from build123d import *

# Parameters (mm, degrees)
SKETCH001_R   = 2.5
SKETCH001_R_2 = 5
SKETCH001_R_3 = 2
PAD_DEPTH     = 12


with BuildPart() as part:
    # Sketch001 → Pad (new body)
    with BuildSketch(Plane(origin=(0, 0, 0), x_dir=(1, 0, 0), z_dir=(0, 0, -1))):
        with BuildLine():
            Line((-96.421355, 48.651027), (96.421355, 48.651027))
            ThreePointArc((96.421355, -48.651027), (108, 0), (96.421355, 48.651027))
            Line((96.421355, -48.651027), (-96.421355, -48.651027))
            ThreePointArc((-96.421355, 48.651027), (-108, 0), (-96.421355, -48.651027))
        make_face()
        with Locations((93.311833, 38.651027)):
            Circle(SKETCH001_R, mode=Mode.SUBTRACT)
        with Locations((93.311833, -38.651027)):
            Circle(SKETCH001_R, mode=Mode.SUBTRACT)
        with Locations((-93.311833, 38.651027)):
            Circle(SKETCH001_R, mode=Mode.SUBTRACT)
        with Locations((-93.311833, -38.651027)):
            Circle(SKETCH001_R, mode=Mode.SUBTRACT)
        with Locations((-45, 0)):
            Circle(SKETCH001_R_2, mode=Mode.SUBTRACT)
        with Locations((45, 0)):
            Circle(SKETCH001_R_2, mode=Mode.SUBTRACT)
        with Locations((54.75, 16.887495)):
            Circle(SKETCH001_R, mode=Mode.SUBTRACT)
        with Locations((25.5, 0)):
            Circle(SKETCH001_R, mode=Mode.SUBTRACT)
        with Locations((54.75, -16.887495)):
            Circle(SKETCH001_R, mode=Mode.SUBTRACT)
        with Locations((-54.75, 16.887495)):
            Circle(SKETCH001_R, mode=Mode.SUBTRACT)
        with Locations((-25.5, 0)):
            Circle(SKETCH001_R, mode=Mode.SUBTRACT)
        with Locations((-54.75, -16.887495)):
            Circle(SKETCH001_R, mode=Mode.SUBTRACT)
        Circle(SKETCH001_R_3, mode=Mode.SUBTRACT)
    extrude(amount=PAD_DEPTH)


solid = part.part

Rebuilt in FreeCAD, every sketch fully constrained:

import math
import FreeCAD as App
import Part
import Sketcher
Q = App.Units.Quantity

doc = App.newDocument("Part")
body = doc.addObject("PartDesign::Body", "Body")

sketch1 = doc.addObject("Sketcher::SketchObject", "Sketch")
body.addObject(sketch1)
sketch1.AttachmentSupport = (doc.XY_Plane, [""])
sketch1.MapMode = "FlatFace"
sketch1.addGeometry(Part.LineSegment(App.Vector(96.4, -48.7, 0), App.Vector(-96.4, -48.7, 0)), False)
sketch1.addGeometry(Part.ArcOfCircle(Part.Circle(App.Vector(0, 0, 0), App.Vector(0, 0, 1), 108), math.radians(153), math.radians(207)), False)
sketch1.addGeometry(Part.LineSegment(App.Vector(-96.4, 48.7, 0), App.Vector(96.4, 48.7, 0)), False)
sketch1.addGeometry(Part.ArcOfCircle(Part.Circle(App.Vector(0, 0, 0), App.Vector(0, 0, 1), 108), math.radians(-27), math.radians(27)), False)
sketch1.addGeometry(Part.Circle(App.Vector(93.3, 38.7, 0), App.Vector(0, 0, 1), 2.5), False)
sketch1.addGeometry(Part.Circle(App.Vector(54.8, 16.9, 0), App.Vector(0, 0, 1), 2.5), False)
sketch1.addGeometry(Part.Circle(App.Vector(-93.3, 38.7, 0), App.Vector(0, 0, 1), 2.5), False)
sketch1.addGeometry(Part.Circle(App.Vector(-54.8, 16.9, 0), App.Vector(0, 0, 1), 2.5), False)
sketch1.addGeometry(Part.Circle(App.Vector(54.8, -16.9, 0), App.Vector(0, 0, 1), 2.5), False)
sketch1.addGeometry(Part.Circle(App.Vector(45, 0, 0), App.Vector(0, 0, 1), 5), False)
sketch1.addGeometry(Part.Circle(App.Vector(25.5, 0, 0), App.Vector(0, 0, 1), 2.5), False)
sketch1.addGeometry(Part.Circle(App.Vector(0, 0, 0), App.Vector(0, 0, 1), 2), False)
sketch1.addGeometry(Part.Circle(App.Vector(93.3, -38.7, 0), App.Vector(0, 0, 1), 2.5), False)
sketch1.addGeometry(Part.Circle(App.Vector(-25.5, 0, 0), App.Vector(0, 0, 1), 2.5), False)
sketch1.addGeometry(Part.Circle(App.Vector(-45, 0, 0), App.Vector(0, 0, 1), 5), False)
sketch1.addGeometry(Part.Circle(App.Vector(-54.8, -16.9, 0), App.Vector(0, 0, 1), 2.5), False)
sketch1.addGeometry(Part.Circle(App.Vector(-93.3, -38.7, 0), App.Vector(0, 0, 1), 2.5), False)
sketch1.addConstraint(Sketcher.Constraint("Coincident", 0, 2, 1, 2))
sketch1.addConstraint(Sketcher.Constraint("Coincident", 1, 1, 2, 1))
sketch1.addConstraint(Sketcher.Constraint("Coincident", 2, 2, 3, 2))
sketch1.addConstraint(Sketcher.Constraint("Coincident", 3, 1, 0, 1))
sketch1.addConstraint(Sketcher.Constraint("Horizontal", 0))
sketch1.addConstraint(Sketcher.Constraint("Horizontal", 2))
sketch1.addConstraint(Sketcher.Constraint("Coincident", 1, 3, -1, 1))
sketch1.addConstraint(Sketcher.Constraint("Coincident", 3, 3, -1, 1))
sketch1.addConstraint(Sketcher.Constraint("Coincident", 11, 3, -1, 1))
sketch1.addConstraint(Sketcher.Constraint("Equal", 1, 3))
sketch1.addConstraint(Sketcher.Constraint("Equal", 4, 5))
sketch1.addConstraint(Sketcher.Constraint("Equal", 5, 6))
sketch1.addConstraint(Sketcher.Constraint("Equal", 6, 7))
sketch1.addConstraint(Sketcher.Constraint("Equal", 7, 8))
sketch1.addConstraint(Sketcher.Constraint("Equal", 8, 10))
sketch1.addConstraint(Sketcher.Constraint("Equal", 10, 12))
sketch1.addConstraint(Sketcher.Constraint("Equal", 12, 13))
sketch1.addConstraint(Sketcher.Constraint("Equal", 9, 14))
sketch1.addConstraint(Sketcher.Constraint("Equal", 13, 15))
sketch1.addConstraint(Sketcher.Constraint("Equal", 15, 16))
sketch1.addConstraint(Sketcher.Constraint("Symmetric", 7, 3, 8, 3, -1, 1))
sketch1.addConstraint(Sketcher.Constraint("Symmetric", 6, 3, 12, 3, -1, 1))
sketch1.addConstraint(Sketcher.Constraint("Symmetric", 10, 3, 13, 3, -1, 1))
sketch1.addConstraint(Sketcher.Constraint("Symmetric", 9, 3, 14, 3, -1, 1))
sketch1.addConstraint(Sketcher.Constraint("Symmetric", 5, 3, 15, 3, -1, 1))
sketch1.addConstraint(Sketcher.Constraint("Symmetric", 4, 3, 16, 3, -1, 1))
sketch1.addConstraint(Sketcher.Constraint("Symmetric", 4, 3, 6, 3, -2))
sketch1.addConstraint(Sketcher.Constraint("Symmetric", 5, 3, 7, 3, -2))
sketch1.addConstraint(Sketcher.Constraint("PointOnObject", 9, 3, -1))
sketch1.addConstraint(Sketcher.Constraint("PointOnObject", 10, 3, -1))
sketch1.addConstraint(Sketcher.Constraint("Vertical", 0, 2, 1, 1))
sketch1.addConstraint(Sketcher.Constraint("Diameter", 4, Q("5 mm")))
sketch1.addConstraint(Sketcher.Constraint("Diameter", 9, Q("10 mm")))
sketch1.addConstraint(Sketcher.Constraint("Diameter", 11, Q("4 mm")))
sketch1.addConstraint(Sketcher.Constraint("DistanceX", -1, 1, 9, 3, Q("45 mm")))
sketch1.addConstraint(Sketcher.Constraint("DistanceX", 13, 3, 10, 3, Q("51 mm")))
sketch1.addConstraint(Sketcher.Constraint("DistanceY", 0, 2, 16, 3, Q("10 mm")))
sketch1.addConstraint(Sketcher.Constraint("DistanceX", 7, 3, 5, 3, Q("109.5 mm")))
sketch1.addConstraint(Sketcher.Constraint("Radius", 1, Q("108.000006 mm")))
sketch1.addConstraint(Sketcher.Constraint("DistanceX", 0, 2, 0, 1, Q("192.84271 mm")))
sketch1.addConstraint(Sketcher.Constraint("DistanceX", 3, 3, 4, 3, Q("93.311839 mm")))
sketch1.addConstraint(Sketcher.Constraint("DistanceY", 5, 3, 4, 3, Q("21.763532 mm")))
pad1 = doc.addObject("PartDesign::Pad", "Pad")
body.addObject(pad1)
pad1.Profile = sketch1
pad1.Length = 12
pad1.Reversed = True

doc.recompute()
